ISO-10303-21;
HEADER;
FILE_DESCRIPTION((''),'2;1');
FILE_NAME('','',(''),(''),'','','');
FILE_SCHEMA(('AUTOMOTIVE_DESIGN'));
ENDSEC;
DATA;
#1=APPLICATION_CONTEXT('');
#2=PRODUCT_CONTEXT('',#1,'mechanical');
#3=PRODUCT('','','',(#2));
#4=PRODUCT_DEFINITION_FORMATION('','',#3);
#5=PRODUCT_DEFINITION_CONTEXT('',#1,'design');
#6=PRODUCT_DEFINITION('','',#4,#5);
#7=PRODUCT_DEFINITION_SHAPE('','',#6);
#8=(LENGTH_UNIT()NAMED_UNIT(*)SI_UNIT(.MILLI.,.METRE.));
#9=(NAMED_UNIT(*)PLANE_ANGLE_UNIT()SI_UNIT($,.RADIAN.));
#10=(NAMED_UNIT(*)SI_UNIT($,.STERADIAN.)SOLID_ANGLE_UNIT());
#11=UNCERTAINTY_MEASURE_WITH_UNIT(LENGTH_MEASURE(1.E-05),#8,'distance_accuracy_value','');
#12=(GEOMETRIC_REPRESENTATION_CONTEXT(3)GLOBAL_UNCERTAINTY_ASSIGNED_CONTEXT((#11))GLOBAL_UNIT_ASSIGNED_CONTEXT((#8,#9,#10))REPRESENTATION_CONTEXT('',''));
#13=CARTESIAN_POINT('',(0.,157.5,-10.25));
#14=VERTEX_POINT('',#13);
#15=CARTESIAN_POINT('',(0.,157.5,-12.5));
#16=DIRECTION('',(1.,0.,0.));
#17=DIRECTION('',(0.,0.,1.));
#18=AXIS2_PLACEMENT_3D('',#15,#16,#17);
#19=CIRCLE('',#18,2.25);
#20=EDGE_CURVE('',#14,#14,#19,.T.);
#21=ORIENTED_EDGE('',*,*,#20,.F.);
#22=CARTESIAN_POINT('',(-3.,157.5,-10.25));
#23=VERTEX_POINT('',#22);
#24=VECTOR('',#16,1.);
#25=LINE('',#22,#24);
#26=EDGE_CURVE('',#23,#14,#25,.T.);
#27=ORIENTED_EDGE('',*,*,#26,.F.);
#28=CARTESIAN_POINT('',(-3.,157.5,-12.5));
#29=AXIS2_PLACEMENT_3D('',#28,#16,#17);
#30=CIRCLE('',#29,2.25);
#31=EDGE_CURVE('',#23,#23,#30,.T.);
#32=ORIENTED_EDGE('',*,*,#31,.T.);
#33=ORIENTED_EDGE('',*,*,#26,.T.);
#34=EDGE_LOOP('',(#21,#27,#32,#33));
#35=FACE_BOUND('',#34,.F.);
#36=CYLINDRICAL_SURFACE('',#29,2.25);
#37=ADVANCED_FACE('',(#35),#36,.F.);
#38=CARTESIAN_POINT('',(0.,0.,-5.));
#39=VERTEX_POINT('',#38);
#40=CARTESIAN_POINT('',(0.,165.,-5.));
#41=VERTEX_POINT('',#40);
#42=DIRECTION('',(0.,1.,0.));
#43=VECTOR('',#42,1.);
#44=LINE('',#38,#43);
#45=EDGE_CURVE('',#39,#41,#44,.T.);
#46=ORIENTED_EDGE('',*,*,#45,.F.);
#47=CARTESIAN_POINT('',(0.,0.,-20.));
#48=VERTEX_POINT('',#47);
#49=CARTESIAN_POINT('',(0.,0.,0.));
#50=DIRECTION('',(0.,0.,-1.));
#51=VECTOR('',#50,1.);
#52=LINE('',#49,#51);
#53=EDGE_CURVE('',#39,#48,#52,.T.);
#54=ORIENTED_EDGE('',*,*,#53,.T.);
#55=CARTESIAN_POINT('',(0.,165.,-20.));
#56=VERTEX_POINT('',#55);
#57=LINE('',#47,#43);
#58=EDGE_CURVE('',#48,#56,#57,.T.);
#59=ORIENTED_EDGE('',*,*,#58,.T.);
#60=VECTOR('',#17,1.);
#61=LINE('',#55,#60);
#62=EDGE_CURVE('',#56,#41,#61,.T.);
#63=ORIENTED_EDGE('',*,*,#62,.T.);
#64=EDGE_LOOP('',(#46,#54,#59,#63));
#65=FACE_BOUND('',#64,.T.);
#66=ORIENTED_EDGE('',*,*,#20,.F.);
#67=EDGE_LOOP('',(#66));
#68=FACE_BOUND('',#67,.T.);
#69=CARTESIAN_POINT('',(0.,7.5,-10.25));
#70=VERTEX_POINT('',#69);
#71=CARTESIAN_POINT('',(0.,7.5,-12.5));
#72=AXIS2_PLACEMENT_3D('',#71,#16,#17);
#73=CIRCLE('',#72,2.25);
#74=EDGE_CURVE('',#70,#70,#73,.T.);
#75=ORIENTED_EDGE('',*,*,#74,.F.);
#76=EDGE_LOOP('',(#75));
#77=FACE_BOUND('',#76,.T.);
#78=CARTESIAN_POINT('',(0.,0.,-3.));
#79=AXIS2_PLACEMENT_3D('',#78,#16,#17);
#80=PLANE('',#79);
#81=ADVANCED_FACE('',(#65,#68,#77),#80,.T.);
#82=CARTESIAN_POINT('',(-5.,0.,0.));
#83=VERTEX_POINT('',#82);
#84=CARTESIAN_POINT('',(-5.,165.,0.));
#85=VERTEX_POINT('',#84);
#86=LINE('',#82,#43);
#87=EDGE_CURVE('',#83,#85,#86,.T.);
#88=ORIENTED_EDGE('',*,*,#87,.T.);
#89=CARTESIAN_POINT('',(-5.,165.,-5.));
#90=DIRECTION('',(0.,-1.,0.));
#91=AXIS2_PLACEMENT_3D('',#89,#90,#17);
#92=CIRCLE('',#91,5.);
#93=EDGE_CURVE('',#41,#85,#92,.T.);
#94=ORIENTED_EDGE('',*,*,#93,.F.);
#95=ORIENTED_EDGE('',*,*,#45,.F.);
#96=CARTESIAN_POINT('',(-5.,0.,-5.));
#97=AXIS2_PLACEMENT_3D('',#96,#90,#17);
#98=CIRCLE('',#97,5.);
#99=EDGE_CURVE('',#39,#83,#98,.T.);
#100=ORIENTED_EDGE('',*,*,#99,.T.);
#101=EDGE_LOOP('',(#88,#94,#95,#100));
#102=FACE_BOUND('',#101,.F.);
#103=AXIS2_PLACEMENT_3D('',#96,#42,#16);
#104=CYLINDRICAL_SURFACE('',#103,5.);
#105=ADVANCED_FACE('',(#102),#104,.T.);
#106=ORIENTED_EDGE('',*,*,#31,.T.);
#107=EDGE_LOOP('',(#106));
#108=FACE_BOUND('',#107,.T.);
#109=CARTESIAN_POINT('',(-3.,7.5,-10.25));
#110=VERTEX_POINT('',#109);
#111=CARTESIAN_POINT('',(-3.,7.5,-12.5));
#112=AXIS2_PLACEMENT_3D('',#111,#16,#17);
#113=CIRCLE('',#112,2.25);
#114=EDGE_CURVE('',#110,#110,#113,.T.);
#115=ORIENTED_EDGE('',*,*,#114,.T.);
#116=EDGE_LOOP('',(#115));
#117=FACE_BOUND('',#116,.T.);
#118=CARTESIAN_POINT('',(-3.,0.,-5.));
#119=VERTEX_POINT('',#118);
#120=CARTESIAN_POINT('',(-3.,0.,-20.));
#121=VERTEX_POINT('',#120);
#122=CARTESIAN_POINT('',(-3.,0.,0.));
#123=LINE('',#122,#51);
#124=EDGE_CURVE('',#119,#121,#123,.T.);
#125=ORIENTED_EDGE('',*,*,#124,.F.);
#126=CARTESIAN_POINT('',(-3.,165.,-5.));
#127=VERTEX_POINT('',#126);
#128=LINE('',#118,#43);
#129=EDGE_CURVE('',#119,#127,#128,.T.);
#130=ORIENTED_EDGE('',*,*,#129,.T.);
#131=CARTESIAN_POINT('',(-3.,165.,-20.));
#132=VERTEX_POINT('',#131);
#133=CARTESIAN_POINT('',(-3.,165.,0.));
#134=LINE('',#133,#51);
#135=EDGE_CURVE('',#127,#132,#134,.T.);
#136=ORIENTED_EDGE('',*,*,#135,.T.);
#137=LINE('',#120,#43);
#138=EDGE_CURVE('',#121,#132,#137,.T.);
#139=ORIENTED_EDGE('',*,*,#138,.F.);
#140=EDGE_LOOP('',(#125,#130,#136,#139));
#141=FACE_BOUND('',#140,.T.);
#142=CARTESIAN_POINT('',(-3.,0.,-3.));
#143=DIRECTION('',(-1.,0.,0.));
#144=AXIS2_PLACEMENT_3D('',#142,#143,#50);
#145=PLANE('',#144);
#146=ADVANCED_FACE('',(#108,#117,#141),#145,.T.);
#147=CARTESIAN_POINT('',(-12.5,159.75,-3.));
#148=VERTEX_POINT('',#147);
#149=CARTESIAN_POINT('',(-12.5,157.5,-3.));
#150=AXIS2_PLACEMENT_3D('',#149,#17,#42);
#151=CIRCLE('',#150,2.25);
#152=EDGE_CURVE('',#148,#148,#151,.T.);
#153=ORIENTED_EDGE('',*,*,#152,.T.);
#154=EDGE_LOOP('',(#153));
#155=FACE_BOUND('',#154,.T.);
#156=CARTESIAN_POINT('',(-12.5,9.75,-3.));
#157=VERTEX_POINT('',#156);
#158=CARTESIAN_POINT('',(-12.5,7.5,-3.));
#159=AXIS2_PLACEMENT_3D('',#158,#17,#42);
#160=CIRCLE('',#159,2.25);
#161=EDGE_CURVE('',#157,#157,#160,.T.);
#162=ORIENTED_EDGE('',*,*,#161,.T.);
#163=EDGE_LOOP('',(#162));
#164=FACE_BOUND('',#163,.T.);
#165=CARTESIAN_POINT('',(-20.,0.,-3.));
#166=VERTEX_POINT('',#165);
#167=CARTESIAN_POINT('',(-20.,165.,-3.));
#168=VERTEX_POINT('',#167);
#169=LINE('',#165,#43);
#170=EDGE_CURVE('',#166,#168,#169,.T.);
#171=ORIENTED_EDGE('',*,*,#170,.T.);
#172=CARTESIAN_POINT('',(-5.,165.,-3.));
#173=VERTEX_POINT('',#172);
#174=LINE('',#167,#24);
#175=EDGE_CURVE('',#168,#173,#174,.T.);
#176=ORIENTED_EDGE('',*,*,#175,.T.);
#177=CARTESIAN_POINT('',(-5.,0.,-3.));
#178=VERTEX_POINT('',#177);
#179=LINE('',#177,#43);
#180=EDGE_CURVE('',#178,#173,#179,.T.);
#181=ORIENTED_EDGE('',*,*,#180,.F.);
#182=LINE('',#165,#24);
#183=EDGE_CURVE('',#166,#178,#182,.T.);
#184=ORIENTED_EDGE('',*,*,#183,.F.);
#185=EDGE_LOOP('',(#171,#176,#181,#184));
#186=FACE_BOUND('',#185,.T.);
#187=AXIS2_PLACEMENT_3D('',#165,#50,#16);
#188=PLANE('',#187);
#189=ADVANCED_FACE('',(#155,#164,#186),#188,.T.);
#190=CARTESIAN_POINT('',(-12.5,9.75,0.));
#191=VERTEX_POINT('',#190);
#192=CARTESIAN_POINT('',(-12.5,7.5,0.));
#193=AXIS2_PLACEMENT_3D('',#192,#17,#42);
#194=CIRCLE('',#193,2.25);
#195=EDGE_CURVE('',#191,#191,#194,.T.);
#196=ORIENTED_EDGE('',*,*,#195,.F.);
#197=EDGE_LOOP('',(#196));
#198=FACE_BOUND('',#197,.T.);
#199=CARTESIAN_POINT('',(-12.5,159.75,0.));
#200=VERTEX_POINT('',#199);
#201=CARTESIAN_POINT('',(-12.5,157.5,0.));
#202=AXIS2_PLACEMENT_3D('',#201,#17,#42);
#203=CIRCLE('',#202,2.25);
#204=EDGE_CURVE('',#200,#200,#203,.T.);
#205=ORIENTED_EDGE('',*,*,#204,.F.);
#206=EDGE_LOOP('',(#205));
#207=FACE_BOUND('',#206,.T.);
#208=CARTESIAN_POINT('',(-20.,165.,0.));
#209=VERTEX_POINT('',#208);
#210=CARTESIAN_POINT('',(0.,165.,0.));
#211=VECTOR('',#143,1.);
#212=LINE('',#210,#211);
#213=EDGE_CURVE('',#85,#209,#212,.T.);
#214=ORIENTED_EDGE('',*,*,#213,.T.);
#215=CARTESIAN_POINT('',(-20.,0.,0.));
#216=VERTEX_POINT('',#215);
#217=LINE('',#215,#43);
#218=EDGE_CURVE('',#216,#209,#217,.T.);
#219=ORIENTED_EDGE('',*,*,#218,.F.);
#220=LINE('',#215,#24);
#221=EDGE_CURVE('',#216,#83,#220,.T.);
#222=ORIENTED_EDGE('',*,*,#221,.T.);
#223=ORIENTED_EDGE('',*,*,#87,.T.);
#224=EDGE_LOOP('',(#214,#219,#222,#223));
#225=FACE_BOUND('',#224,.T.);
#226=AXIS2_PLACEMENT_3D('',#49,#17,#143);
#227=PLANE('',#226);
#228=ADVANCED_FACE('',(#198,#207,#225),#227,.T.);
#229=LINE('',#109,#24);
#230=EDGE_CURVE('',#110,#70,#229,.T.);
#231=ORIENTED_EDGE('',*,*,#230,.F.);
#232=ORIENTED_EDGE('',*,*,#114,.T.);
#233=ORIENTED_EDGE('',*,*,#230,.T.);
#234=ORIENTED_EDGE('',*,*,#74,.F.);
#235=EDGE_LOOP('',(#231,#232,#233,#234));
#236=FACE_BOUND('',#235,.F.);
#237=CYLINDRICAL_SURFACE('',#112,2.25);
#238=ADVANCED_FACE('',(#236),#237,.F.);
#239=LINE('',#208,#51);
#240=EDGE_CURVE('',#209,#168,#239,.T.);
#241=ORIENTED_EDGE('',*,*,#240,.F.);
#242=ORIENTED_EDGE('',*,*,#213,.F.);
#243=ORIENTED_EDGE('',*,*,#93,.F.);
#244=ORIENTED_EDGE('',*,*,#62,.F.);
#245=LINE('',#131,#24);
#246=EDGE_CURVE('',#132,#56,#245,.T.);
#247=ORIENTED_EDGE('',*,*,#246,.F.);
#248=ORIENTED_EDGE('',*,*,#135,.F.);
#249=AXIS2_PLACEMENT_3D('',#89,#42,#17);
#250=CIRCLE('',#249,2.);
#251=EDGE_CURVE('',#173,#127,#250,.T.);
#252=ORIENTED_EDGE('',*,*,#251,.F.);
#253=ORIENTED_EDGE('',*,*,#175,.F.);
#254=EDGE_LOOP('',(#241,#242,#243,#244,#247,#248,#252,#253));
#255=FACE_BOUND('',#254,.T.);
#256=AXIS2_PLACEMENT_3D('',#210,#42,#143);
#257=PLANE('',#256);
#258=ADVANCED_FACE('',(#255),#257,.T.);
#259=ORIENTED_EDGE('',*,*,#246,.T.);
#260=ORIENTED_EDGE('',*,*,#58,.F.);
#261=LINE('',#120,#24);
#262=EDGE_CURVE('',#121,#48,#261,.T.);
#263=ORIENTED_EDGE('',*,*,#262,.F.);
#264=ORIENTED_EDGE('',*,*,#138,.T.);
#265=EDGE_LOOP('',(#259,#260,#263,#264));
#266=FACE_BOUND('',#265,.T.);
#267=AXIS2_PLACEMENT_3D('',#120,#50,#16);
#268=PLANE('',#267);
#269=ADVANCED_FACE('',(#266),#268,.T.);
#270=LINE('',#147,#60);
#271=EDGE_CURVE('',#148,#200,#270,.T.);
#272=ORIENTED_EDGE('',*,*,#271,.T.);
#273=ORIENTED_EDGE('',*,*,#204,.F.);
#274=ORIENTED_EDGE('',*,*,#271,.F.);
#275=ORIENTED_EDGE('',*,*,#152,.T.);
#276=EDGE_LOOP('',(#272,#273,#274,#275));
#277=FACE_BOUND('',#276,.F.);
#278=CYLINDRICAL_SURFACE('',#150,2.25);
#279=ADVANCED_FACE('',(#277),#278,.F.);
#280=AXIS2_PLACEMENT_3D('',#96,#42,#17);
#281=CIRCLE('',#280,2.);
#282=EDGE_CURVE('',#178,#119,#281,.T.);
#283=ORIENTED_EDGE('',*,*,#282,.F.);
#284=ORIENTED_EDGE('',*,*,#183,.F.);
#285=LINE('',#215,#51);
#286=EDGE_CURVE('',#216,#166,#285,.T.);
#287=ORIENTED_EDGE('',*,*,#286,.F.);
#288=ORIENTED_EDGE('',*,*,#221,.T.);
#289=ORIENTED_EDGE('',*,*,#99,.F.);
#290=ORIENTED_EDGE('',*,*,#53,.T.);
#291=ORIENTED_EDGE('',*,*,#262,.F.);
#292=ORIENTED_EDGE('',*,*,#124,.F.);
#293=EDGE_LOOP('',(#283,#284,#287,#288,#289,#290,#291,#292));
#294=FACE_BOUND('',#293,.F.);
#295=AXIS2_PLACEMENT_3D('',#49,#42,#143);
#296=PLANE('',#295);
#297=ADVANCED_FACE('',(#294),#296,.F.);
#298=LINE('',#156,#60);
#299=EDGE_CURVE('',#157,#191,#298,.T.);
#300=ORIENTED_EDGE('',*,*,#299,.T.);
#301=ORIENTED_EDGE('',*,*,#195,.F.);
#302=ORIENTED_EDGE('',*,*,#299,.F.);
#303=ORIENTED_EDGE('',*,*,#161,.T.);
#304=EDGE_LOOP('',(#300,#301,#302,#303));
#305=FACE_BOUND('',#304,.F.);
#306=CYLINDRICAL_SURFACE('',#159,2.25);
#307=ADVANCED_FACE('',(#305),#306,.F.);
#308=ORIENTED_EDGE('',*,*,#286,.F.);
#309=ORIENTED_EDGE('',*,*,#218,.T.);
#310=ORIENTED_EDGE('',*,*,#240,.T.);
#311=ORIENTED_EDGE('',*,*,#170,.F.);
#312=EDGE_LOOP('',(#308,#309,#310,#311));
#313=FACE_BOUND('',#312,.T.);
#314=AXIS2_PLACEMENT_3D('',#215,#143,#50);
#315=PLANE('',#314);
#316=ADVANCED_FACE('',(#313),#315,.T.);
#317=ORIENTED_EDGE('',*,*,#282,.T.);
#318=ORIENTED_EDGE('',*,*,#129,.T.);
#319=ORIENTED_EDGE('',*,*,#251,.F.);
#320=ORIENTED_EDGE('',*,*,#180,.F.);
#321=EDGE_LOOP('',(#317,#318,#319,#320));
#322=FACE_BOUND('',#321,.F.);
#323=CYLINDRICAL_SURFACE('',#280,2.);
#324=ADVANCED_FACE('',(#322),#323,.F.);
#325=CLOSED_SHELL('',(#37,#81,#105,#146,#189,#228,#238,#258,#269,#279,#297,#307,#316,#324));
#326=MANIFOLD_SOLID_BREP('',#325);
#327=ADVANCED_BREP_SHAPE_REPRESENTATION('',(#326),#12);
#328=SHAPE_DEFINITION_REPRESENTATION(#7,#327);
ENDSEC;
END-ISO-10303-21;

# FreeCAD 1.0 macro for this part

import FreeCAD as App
import Part
import Sketcher
from FreeCAD import Vector


def edges_at(feature, points):
    """Names of the edges that pass closest to the given points."""
    edges = feature.Shape.Edges
    near = lambda p: min(range(len(edges)), key=lambda i: edges[i].distToShape(Part.Vertex(*p))[0])
    return sorted({f"Edge{near(p) + 1}" for p in points})

doc = App.newDocument("Part")
params = doc.addObject("Spreadsheet::Sheet", "Params")
for row, (alias, value) in enumerate([
    ("sketch1_width", "3 mm"),
    ("sketch1_width2", "20 mm"),
    ("pad1_length", "165 mm"),
    ("fillet_radius", "2 mm"),
    ("fillet2_radius", "5 mm"),
    ("sketch2_diameter", "4.5 mm"),
    ("hole_diameter", "4.5 mm"),
    ("sketch3_diameter", "4.5 mm"),
    ("hole2_diameter", "4.5 mm"),
], start=1):
    params.set(f"A{row}", alias)
    params.set(f"B{row}", "=" + value)
    params.setAlias(f"B{row}", alias)

body = doc.addObject("PartDesign::Body", "Body")

sketch1 = body.newObject("Sketcher::SketchObject", "Sketch")
sketch1.AttachmentSupport = (doc.getObject("XZ_Plane"), [""])
sketch1.MapMode = "FlatFace"
sketch1.addGeometry([
    Part.LineSegment(Vector(0, 0, 0), Vector(0, -20, 0)),
    Part.LineSegment(Vector(0, -20, 0), Vector(-3, -20, 0)),
    Part.LineSegment(Vector(-3, -20, 0), Vector(-3, -3, 0)),
    Part.LineSegment(Vector(-3, -3, 0), Vector(-20, -3, 0)),
    Part.LineSegment(Vector(-20, -3, 0), Vector(-20, 0, 0)),
    Part.LineSegment(Vector(-20, 0, 0), Vector(0, 0, 0)),
], False)
sketch1.addConstraint([
    Sketcher.Constraint("Coincident", 0, 2, 1, 1),
    Sketcher.Constraint("Coincident", 1, 2, 2, 1),
    Sketcher.Constraint("Coincident", 2, 2, 3, 1),
    Sketcher.Constraint("Coincident", 3, 2, 4, 1),
    Sketcher.Constraint("Coincident", 4, 2, 5, 1),
    Sketcher.Constraint("Coincident", 5, 2, 0, 1),
    Sketcher.Constraint("Vertical", 0),
    Sketcher.Constraint("Horizontal", 1),
    Sketcher.Constraint("Vertical", 2),
    Sketcher.Constraint("Horizontal", 3),
    Sketcher.Constraint("Vertical", 4),
    Sketcher.Constraint("Horizontal", 5),
    Sketcher.Constraint("Coincident", 5, 2, -1, 1),
    Sketcher.Constraint("Equal", 5, 0),
    Sketcher.Constraint("Equal", 3, 2),
    Sketcher.Constraint("DistanceX", 1, 2, 1, 1, 3.0),
    Sketcher.Constraint("DistanceX", 5, 1, 5, 2, 20.0),
])
sketch1.setExpression("Constraints[15]", "Params.sketch1_width")
sketch1.setExpression("Constraints[16]", "Params.sketch1_width2")
pad1 = body.newObject("PartDesign::Pad", "Pad")
pad1.Profile = sketch1
pad1.setExpression("Length", "Params.pad1_length")
pad1.Reversed = True
doc.recompute()

fillet = body.newObject("PartDesign::Fillet", "Fillet")
fillet.Base = (pad1, edges_at(pad1, [(-3, 82.5, -3)]))
fillet.setExpression("Radius", "Params.fillet_radius")
doc.recompute()

fillet2 = body.newObject("PartDesign::Fillet", "Fillet001")
fillet2.Base = (fillet, edges_at(fillet, [(0, 82.5, 0)]))
fillet2.setExpression("Radius", "Params.fillet2_radius")

sketch2 = body.newObject("Sketcher::SketchObject", "Sketch001")
sketch2.AttachmentSupport = (doc.getObject("YZ_Plane"), [""])
sketch2.MapMode = "FlatFace"
sketch2.AttachmentOffset = App.Placement(Vector(0, 0, -3), App.Rotation())
sketch2.addGeometry([
    Part.Circle(Vector(157.5, -12.5, 0), Vector(0, 0, 1), 2.2),
    Part.Circle(Vector(7.5, -12.5, 0), Vector(0, 0, 1), 2.2),
], False)
sketch2.addConstraint([
    Sketcher.Constraint("Equal", 0, 1),
    Sketcher.Constraint("Horizontal", 0, 3, 1, 3),
    Sketcher.Constraint("Diameter", 0, 4.5),
    Sketcher.Constraint("DistanceX", 1, 3, 0, 3, 150.0),
    Sketcher.Constraint("DistanceX", -1, 1, 0, 3, 157.5),
    Sketcher.Constraint("DistanceY", 0, 3, -1, 1, 12.5),
])
sketch2.setExpression("Constraints[2]", "Params.sketch2_diameter")
doc.recompute()
hole = body.newObject("PartDesign::Hole", "Hole")
hole.Profile = sketch2
hole.ThreadType = "None"
hole.setExpression("Diameter", "Params.hole_diameter")
hole.DepthType = "ThroughAll"
hole.Reversed = True

sketch3 = body.newObject("Sketcher::SketchObject", "Sketch002")
sketch3.AttachmentSupport = (doc.getObject("XY_Plane"), [""])
sketch3.MapMode = "FlatFace"
sketch3.AttachmentOffset = App.Placement(Vector(0, 0, -3), App.Rotation())
sketch3.addGeometry([
    Part.Circle(Vector(-12.5, 157.5, 0), Vector(0, 0, 1), 2.2),
    Part.Circle(Vector(-12.5, 7.5, 0), Vector(0, 0, 1), 2.2),
], False)
sketch3.addConstraint([
    Sketcher.Constraint("Equal", 0, 1),
    Sketcher.Constraint("Vertical", 0, 3, 1, 3),
    Sketcher.Constraint("Diameter", 0, 4.5),
    Sketcher.Constraint("DistanceY", 1, 3, 0, 3, 150.0),
    Sketcher.Constraint("DistanceX", 0, 3, -1, 1, 12.5),
    Sketcher.Constraint("DistanceY", -1, 1, 0, 3, 157.5),
])
sketch3.setExpression("Constraints[2]", "Params.sketch3_diameter")
doc.recompute()
hole2 = body.newObject("PartDesign::Hole", "Hole001")
hole2.Profile = sketch3
hole2.ThreadType = "None"
hole2.setExpression("Diameter", "Params.hole2_diameter")
hole2.DepthType = "ThroughAll"
hole2.Reversed = True

doc.recompute()
